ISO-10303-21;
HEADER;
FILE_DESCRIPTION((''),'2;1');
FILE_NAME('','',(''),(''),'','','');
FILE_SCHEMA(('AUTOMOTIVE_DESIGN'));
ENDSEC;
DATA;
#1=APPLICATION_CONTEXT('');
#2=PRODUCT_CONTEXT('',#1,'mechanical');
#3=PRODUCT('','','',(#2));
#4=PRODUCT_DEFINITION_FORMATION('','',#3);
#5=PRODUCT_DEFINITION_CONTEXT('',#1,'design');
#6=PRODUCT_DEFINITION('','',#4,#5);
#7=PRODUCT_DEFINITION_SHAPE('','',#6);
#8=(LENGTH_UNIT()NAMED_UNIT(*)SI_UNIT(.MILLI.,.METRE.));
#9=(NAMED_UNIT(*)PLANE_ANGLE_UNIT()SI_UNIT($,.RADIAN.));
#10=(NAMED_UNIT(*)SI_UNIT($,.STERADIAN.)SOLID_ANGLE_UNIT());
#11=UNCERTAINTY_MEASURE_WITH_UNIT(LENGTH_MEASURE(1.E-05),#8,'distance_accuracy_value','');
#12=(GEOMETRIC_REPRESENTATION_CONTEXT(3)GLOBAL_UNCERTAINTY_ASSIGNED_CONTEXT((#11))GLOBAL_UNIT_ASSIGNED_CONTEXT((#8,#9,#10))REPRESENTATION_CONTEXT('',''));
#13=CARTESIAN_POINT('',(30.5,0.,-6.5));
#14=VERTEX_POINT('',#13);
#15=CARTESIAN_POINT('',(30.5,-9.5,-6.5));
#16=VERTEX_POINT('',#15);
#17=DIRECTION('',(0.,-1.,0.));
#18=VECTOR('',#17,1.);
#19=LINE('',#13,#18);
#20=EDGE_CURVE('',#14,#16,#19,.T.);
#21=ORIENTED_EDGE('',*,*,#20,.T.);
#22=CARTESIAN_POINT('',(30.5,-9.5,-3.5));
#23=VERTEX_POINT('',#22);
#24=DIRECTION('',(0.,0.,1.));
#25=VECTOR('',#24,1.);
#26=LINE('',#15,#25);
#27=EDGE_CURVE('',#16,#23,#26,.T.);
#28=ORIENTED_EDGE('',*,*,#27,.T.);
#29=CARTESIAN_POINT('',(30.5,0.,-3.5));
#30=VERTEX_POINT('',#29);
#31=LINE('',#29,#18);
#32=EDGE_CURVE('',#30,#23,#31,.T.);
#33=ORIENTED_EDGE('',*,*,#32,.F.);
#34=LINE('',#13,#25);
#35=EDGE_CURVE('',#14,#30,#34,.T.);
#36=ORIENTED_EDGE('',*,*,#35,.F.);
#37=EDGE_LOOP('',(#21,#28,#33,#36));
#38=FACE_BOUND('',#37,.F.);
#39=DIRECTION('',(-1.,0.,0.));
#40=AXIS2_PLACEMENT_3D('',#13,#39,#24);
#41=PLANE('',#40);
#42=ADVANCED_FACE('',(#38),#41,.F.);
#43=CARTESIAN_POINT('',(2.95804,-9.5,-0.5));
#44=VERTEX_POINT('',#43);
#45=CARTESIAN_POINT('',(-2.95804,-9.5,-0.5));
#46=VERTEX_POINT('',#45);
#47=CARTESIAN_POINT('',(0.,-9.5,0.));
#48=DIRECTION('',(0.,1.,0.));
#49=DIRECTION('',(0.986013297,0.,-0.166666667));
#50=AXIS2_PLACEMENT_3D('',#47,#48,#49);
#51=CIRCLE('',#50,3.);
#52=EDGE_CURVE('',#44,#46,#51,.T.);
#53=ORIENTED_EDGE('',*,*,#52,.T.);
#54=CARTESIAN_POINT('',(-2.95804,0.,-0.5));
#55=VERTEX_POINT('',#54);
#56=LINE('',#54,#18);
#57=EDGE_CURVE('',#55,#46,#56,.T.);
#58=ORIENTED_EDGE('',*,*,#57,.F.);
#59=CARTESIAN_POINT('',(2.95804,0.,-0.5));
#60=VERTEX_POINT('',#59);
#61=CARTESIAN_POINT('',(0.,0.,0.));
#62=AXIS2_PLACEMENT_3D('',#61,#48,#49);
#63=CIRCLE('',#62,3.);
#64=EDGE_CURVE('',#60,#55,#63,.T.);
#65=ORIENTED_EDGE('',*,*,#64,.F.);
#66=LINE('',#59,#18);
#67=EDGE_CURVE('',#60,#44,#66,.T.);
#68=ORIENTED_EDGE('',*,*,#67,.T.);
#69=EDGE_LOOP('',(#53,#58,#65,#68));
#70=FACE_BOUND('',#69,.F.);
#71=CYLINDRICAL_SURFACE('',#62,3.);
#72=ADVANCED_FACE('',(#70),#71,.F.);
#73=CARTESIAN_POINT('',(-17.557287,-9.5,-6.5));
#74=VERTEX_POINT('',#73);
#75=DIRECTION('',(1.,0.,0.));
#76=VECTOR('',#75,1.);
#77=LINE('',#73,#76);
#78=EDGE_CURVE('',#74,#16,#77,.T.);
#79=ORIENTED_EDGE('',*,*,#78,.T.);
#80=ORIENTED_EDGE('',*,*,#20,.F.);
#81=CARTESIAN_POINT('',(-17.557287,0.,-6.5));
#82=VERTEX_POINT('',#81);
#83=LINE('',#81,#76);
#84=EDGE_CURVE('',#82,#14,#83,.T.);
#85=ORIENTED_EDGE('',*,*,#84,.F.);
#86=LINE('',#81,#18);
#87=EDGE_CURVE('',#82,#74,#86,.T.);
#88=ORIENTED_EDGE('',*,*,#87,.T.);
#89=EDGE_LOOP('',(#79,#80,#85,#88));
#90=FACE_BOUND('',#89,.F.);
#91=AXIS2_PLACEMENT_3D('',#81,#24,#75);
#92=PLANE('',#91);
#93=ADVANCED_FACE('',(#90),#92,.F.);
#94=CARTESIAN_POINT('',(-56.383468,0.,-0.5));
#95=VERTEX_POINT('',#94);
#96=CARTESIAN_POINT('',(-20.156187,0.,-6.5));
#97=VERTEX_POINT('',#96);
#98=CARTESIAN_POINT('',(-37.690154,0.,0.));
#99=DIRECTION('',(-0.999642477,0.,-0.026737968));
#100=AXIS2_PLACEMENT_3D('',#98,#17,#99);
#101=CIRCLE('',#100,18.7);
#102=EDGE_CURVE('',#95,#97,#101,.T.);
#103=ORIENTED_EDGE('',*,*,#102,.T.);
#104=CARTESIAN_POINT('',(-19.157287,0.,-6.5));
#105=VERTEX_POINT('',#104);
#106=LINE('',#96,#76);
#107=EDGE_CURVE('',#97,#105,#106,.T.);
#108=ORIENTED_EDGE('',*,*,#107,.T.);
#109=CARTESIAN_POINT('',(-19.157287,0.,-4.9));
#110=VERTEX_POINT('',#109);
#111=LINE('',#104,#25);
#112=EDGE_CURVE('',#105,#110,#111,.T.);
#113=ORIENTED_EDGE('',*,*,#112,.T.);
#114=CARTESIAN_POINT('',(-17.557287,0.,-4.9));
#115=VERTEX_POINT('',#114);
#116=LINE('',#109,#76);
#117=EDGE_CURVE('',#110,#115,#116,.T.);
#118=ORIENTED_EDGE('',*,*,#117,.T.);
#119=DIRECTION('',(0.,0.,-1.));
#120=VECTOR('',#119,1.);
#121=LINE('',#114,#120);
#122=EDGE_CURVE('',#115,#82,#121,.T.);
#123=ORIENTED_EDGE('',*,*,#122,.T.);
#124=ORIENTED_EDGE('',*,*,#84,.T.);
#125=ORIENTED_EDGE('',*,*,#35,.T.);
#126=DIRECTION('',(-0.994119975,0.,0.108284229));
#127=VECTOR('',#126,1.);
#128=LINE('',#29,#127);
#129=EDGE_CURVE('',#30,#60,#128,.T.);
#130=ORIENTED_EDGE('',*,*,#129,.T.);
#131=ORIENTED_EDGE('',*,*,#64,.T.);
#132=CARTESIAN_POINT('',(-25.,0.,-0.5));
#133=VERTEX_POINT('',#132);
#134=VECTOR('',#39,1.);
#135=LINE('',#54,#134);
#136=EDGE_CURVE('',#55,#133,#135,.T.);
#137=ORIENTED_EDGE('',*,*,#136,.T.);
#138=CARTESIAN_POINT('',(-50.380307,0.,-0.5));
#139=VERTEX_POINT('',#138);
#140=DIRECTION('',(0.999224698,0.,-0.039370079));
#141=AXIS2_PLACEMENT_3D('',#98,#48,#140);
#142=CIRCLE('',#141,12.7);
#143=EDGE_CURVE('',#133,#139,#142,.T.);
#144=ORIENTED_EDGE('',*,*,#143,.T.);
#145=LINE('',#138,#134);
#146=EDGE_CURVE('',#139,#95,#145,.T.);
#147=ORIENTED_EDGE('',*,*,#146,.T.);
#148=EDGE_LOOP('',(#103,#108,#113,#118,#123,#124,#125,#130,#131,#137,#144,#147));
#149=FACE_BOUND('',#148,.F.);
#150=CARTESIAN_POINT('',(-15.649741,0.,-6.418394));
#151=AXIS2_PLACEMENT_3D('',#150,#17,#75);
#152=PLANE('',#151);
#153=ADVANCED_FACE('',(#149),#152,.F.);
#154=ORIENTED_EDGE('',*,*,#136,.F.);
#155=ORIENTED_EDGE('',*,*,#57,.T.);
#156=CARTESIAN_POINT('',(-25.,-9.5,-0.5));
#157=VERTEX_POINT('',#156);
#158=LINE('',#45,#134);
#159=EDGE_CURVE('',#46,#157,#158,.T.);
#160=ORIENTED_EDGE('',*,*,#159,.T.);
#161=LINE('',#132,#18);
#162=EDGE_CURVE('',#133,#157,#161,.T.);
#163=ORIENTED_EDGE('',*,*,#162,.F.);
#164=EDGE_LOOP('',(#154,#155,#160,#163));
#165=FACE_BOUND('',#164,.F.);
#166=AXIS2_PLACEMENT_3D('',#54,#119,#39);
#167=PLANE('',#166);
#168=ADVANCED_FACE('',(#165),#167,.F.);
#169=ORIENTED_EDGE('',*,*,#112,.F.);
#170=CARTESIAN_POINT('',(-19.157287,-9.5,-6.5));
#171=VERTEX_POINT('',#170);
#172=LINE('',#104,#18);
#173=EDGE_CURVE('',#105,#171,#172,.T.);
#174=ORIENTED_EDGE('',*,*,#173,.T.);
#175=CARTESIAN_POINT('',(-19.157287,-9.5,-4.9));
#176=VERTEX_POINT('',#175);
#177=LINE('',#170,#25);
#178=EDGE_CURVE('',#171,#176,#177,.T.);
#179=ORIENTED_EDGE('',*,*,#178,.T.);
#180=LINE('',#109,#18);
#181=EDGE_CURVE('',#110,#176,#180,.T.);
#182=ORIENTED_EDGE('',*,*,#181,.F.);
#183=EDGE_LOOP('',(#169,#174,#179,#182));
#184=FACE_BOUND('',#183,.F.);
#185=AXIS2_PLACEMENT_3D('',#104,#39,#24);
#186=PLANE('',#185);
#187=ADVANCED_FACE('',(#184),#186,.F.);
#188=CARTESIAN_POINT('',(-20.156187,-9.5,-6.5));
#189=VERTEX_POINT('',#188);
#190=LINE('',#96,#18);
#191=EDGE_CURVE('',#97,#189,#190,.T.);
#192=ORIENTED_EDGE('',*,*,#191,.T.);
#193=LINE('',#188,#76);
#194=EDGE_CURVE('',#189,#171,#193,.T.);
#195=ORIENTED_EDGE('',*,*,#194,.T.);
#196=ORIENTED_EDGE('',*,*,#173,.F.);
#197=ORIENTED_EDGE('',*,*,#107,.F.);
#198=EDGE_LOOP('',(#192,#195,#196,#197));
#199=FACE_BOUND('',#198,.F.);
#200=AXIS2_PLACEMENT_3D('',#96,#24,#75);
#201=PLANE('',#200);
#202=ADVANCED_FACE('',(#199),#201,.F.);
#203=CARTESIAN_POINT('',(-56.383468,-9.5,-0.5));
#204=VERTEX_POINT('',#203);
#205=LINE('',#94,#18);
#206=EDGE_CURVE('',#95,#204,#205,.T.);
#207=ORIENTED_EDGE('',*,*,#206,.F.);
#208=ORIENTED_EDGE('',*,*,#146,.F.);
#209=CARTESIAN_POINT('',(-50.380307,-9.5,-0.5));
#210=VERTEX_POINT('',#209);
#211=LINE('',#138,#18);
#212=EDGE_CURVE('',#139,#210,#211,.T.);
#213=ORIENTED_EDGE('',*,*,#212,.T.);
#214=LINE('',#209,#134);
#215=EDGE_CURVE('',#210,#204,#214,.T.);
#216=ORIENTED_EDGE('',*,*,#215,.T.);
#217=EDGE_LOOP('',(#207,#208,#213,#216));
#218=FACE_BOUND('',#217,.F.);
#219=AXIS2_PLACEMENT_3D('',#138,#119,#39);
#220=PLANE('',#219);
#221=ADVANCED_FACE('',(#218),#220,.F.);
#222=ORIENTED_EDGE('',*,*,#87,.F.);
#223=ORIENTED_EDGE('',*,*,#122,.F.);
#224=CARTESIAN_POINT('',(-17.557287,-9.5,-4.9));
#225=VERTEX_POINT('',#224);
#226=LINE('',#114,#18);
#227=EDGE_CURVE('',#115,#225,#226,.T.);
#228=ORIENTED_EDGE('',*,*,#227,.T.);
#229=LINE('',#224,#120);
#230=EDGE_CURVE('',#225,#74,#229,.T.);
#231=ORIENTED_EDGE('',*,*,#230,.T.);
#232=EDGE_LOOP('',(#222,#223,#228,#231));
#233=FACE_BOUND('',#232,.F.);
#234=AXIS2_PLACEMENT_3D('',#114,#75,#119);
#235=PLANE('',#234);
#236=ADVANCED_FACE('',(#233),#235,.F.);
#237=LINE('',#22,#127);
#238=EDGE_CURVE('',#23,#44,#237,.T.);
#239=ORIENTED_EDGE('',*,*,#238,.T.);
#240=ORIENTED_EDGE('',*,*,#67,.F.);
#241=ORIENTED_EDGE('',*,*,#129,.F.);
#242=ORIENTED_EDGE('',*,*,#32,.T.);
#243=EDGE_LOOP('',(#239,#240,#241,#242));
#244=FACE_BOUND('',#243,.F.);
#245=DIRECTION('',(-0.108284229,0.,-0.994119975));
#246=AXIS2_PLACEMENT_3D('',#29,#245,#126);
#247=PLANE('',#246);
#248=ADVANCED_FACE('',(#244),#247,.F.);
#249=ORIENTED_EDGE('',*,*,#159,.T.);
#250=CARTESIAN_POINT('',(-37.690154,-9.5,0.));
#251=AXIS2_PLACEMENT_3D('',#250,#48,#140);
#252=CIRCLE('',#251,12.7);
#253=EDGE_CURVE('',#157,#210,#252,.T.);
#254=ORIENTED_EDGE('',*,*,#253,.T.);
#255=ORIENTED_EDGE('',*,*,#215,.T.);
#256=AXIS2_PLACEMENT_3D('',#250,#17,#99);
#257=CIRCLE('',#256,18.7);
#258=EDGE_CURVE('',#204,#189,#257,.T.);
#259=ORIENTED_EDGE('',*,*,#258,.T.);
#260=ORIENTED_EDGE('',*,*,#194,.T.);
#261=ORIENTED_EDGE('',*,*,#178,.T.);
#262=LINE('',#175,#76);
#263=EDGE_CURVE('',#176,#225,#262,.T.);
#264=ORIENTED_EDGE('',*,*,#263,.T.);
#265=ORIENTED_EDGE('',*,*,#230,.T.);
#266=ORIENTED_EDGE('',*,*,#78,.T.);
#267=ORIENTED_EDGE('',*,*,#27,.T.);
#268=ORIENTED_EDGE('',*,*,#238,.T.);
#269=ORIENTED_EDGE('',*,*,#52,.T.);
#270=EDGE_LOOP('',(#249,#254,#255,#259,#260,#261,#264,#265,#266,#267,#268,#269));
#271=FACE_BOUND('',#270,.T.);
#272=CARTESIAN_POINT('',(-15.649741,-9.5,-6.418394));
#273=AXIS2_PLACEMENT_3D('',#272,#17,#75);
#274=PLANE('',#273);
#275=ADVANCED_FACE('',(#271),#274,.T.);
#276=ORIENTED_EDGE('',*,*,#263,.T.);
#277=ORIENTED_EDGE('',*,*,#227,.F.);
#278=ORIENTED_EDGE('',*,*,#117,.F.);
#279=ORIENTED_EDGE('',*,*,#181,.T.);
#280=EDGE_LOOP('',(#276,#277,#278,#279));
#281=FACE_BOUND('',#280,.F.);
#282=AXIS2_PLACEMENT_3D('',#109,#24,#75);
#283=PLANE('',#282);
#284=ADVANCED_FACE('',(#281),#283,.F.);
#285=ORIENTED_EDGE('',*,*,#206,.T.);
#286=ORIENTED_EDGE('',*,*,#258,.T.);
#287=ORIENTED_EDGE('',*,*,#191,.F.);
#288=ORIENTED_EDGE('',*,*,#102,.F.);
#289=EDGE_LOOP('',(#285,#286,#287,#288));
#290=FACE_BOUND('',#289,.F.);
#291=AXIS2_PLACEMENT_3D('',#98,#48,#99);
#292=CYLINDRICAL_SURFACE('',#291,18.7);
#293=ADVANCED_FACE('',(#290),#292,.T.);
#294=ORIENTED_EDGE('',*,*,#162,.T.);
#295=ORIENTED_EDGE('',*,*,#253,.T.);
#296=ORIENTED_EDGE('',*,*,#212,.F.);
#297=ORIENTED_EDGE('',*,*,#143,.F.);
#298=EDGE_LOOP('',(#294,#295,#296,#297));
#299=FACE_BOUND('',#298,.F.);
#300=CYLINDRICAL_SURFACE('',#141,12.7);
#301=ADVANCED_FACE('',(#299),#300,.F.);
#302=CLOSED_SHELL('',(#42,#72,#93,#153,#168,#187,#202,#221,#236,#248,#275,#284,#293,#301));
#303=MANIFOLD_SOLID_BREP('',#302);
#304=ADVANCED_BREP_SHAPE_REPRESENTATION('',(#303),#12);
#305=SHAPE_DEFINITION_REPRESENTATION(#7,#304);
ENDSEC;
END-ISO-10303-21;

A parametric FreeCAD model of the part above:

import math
import FreeCAD as App
import Part
import Sketcher
Q = App.Units.Quantity

doc = App.newDocument("Part")
params = doc.addObject("Spreadsheet::Sheet", "Params")
for row, (alias, value) in enumerate([
    ("sketch1_radius", "3 mm"),
    ("sketch1_radius2", "12.7 mm"),
    ("sketch1_radius3", "18.7 mm"),
    ("sketch1_height", "3 mm"),
    ("sketch1_width", "1.6 mm"),
    ("pad1_length", "9.5 mm"),
], start=1):
    params.set(f"A{row}", alias)
    params.set(f"B{row}", "=" + value)
    params.setAlias(f"B{row}", alias)

body = doc.addObject("PartDesign::Body", "Body")

# Sketch on XZ plane
sketch1 = body.newObject("Sketcher::SketchObject", "Sketch")
sketch1.AttachmentSupport = (doc.getObject("XZ_Plane"), [""])
sketch1.MapMode = "FlatFace"
sketch1.addGeometry([
    Part.LineSegment(App.Vector(-17.6, -6.5, 0), App.Vector(30.5, -6.5, 0)),  # 0
    Part.LineSegment(App.Vector(30.5, -6.5, 0), App.Vector(30.5, -3.5, 0)),  # 1
    Part.LineSegment(App.Vector(30.5, -3.5, 0), App.Vector(3, -0.5, 0)),  # 2
    Part.ArcOfCircle(Part.Circle(App.Vector(0, 0, 0), App.Vector(0, 0, 1), 3), math.radians(-170), math.radians(-10)),  # 3
    Part.LineSegment(App.Vector(-3, -0.5, 0), App.Vector(-25, -0.5, 0)),  # 4
    Part.ArcOfCircle(Part.Circle(App.Vector(-37.7, 0, 0), App.Vector(0, 0, 1), 12.7), math.radians(-178), math.radians(-2)),  # 5
    Part.LineSegment(App.Vector(-50.4, -0.5, 0), App.Vector(-56.4, -0.5, 0)),  # 6
    Part.ArcOfCircle(Part.Circle(App.Vector(-37.7, 0, 0), App.Vector(0, 0, 1), 18.7), math.radians(-178), math.radians(-20)),  # 7
    Part.LineSegment(App.Vector(-20.2, -6.5, 0), App.Vector(-19.2, -6.5, 0)),  # 8
    Part.LineSegment(App.Vector(-19.2, -6.5, 0), App.Vector(-19.2, -4.9, 0)),  # 9
    Part.LineSegment(App.Vector(-19.2, -4.9, 0), App.Vector(-17.6, -4.9, 0)),  # 10
    Part.LineSegment(App.Vector(-17.6, -4.9, 0), App.Vector(-17.6, -6.5, 0)),  # 11
], False)
sketch1.addConstraint([
    Sketcher.Constraint("Coincident", 0, 2, 1, 1),
    Sketcher.Constraint("Coincident", 1, 2, 2, 1),
    Sketcher.Constraint("Coincident", 2, 2, 3, 2),
    Sketcher.Constraint("Coincident", 3, 1, 4, 1),
    Sketcher.Constraint("Coincident", 4, 2, 5, 2),
    Sketcher.Constraint("Coincident", 5, 1, 6, 1),
    Sketcher.Constraint("Coincident", 6, 2, 7, 1),
    Sketcher.Constraint("Coincident", 7, 2, 8, 1),
    Sketcher.Constraint("Coincident", 8, 2, 9, 1),
    Sketcher.Constraint("Coincident", 9, 2, 10, 1),
    Sketcher.Constraint("Coincident", 10, 2, 11, 1),
    Sketcher.Constraint("Coincident", 11, 2, 0, 1),
    Sketcher.Constraint("Horizontal", 0),
    Sketcher.Constraint("Vertical", 1),
    Sketcher.Constraint("Horizontal", 4),
    Sketcher.Constraint("Horizontal", 6),
    Sketcher.Constraint("Horizontal", 8),
    Sketcher.Constraint("Vertical", 9),
    Sketcher.Constraint("Horizontal", 10),
    Sketcher.Constraint("Vertical", 11),
    Sketcher.Constraint("Coincident", 3, 3, -1, 1),
    Sketcher.Constraint("Coincident", 7, 3, 5, 3),
    Sketcher.Constraint("PointOnObject", 5, 3, -1),
    Sketcher.Constraint("Horizontal", 2, 2, 3, 1),
    Sketcher.Constraint("Horizontal", 4, 2, 5, 1),
    Sketcher.Constraint("Horizontal", 0, 2, 7, 2),
    Sketcher.Constraint("Equal", 10, 9),
    Sketcher.Constraint("Radius", 3, Q("3 mm")),
    Sketcher.Constraint("Radius", 5, Q("12.7 mm")),
    Sketcher.Constraint("Radius", 7, Q("18.7 mm")),
    Sketcher.Constraint("DistanceY", 1, 1, 1, 2, Q("3 mm")),
    Sketcher.Constraint("DistanceX", 10, 1, 10, 2, Q("1.6 mm")),
    Sketcher.Constraint("DistanceX", 4, 2, -1, 1, Q("25 mm")),
    Sketcher.Constraint("DistanceY", 1, 2, 2, 2, Q("3 mm")),
    Sketcher.Constraint("DistanceX", -1, 1, 0, 2, Q("30.5 mm")),
    Sketcher.Constraint("DistanceY", 0, 2, -1, 1, Q("6.5 mm")),
    Sketcher.Constraint("DistanceX", 8, 1, 8, 2, Q("0.998899 mm")),
])
sketch1.setExpression("Constraints[27]", "Params.sketch1_radius")
sketch1.setExpression("Constraints[28]", "Params.sketch1_radius2")
sketch1.setExpression("Constraints[29]", "Params.sketch1_radius3")
sketch1.setExpression("Constraints[30]", "Params.sketch1_height")
sketch1.setExpression("Constraints[31]", "Params.sketch1_width")
pad1 = body.newObject("PartDesign::Pad", "Pad")
pad1.Profile = sketch1
pad1.setExpression("Length", "Params.pad1_length")

doc.recompute()
